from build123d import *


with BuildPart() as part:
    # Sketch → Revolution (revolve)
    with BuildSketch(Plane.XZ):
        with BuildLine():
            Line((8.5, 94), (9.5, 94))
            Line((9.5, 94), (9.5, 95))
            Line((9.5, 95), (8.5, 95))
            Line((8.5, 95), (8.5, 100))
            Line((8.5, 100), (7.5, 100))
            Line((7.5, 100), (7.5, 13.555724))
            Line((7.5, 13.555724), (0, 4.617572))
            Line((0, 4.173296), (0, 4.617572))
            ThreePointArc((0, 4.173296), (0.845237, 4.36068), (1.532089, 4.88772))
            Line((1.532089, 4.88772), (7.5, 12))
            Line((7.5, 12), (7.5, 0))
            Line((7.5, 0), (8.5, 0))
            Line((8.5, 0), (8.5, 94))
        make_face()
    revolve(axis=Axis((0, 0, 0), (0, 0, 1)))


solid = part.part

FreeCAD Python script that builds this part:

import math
import FreeCAD as App
import Part
import Sketcher
from FreeCAD import Vector
Q = App.Units.Quantity

doc = App.newDocument("Part")
body = doc.addObject("PartDesign::Body", "Body")

# Sketch on XZ plane
sketch1 = body.newObject("Sketcher::SketchObject", "Sketch")
sketch1.AttachmentSupport = (doc.getObject("XZ_Plane"), [""])
sketch1.MapMode = "FlatFace"
sketch1.addGeometry([
    Part.LineSegment(Vector(8.5, 94, 0), Vector(9.5, 94, 0)),  # 0
    Part.LineSegment(Vector(9.5, 94, 0), Vector(9.5, 95, 0)),  # 1
    Part.LineSegment(Vector(9.5, 95, 0), Vector(8.5, 95, 0)),  # 2
    Part.LineSegment(Vector(8.5, 95, 0), Vector(8.5, 100, 0)),  # 3
    Part.LineSegment(Vector(8.5, 100, 0), Vector(7.5, 100, 0)),  # 4
    Part.LineSegment(Vector(7.5, 100, 0), Vector(7.5, 13.56, 0)),  # 5
    Part.LineSegment(Vector(7.5, 13.56, 0), Vector(0, 4.62, 0)),  # 6
    Part.LineSegment(Vector(0, 4.62, 0), Vector(0, 4.17, 0)),  # 7
    Part.ArcOfCircle(Part.Circle(Vector(0, 6.17, 0), Vector(0, 0, 1), 2), math.radians(-90), math.radians(-40)),  # 8
    Part.LineSegment(Vector(1.53, 4.89, 0), Vector(7.5, 12, 0)),  # 9
    Part.LineSegment(Vector(7.5, 12, 0), Vector(7.5, 0, 0)),  # 10
    Part.LineSegment(Vector(7.5, 0, 0), Vector(8.5, 0, 0)),  # 11
    Part.LineSegment(Vector(8.5, 0, 0), Vector(8.5, 94, 0)),  # 12
], False)
sketch1.addConstraint([
    Sketcher.Constraint("Coincident", 0, 2, 1, 1),
    Sketcher.Constraint("Coincident", 1, 2, 2, 1),
    Sketcher.Constraint("Coincident", 2, 2, 3, 1),
    Sketcher.Constraint("Coincident", 3, 2, 4, 1),
    Sketcher.Constraint("Coincident", 4, 2, 5, 1),
    Sketcher.Constraint("Coincident", 5, 2, 6, 1),
    Sketcher.Constraint("Coincident", 6, 2, 7, 1),
    Sketcher.Constraint("Coincident", 7, 2, 8, 1),
    Sketcher.Constraint("Tangent", 8, 2, 9, 1),
    Sketcher.Constraint("Coincident", 9, 2, 10, 1),
    Sketcher.Constraint("Coincident", 10, 2, 11, 1),
    Sketcher.Constraint("Coincident", 11, 2, 12, 1),
    Sketcher.Constraint("Coincident", 12, 2, 0, 1),
    Sketcher.Constraint("Horizontal", 0),
    Sketcher.Constraint("Vertical", 1),
    Sketcher.Constraint("Horizontal", 2),
    Sketcher.Constraint("Vertical", 3),
    Sketcher.Constraint("Horizontal", 4),
    Sketcher.Constraint("Vertical", 5),
    Sketcher.Constraint("Vertical", 7),
    Sketcher.Constraint("Vertical", 10),
    Sketcher.Constraint("Horizontal", 11),
    Sketcher.Constraint("Vertical", 12),
    Sketcher.Constraint("PointOnObject", 8, 3, -2),
    Sketcher.Constraint("PointOnObject", 6, 2, -2),
    Sketcher.Constraint("PointOnObject", 10, 2, -1),
    Sketcher.Constraint("Parallel", 6, 9),
    Sketcher.Constraint("Vertical", 5, 2, 9, 2),
    Sketcher.Constraint("Vertical", 3, 2, 11, 2),
    Sketcher.Constraint("Equal", 2, 4),
    Sketcher.Constraint("Equal", 11, 1),
    Sketcher.Constraint("DistanceX", 0, 1, 0, 2, 1.0),
    Sketcher.Constraint("DistanceY", 3, 1, 3, 2, 5.0),
    Sketcher.Constraint("DistanceY", 10, 2, 10, 1, 12.0),
    Sketcher.Constraint("DistanceY", 12, 1, 12, 2, 94.0),
    Sketcher.Constraint("Angle", 6, Q("-130 deg")),
    Sketcher.Constraint("DistanceX", -1, 1, 0, 2, 9.5),
    Sketcher.Constraint("Radius", 8, 1.999997),
    Sketcher.Constraint("DistanceY", 5, 2, 5, 1, 86.444276),
])
revolution = body.newObject("PartDesign::Revolution", "Revolution")
revolution.Profile = sketch1
revolution.ReferenceAxis = (sketch1, ["V_Axis"])
revolution.Angle = 360

doc.recompute()
